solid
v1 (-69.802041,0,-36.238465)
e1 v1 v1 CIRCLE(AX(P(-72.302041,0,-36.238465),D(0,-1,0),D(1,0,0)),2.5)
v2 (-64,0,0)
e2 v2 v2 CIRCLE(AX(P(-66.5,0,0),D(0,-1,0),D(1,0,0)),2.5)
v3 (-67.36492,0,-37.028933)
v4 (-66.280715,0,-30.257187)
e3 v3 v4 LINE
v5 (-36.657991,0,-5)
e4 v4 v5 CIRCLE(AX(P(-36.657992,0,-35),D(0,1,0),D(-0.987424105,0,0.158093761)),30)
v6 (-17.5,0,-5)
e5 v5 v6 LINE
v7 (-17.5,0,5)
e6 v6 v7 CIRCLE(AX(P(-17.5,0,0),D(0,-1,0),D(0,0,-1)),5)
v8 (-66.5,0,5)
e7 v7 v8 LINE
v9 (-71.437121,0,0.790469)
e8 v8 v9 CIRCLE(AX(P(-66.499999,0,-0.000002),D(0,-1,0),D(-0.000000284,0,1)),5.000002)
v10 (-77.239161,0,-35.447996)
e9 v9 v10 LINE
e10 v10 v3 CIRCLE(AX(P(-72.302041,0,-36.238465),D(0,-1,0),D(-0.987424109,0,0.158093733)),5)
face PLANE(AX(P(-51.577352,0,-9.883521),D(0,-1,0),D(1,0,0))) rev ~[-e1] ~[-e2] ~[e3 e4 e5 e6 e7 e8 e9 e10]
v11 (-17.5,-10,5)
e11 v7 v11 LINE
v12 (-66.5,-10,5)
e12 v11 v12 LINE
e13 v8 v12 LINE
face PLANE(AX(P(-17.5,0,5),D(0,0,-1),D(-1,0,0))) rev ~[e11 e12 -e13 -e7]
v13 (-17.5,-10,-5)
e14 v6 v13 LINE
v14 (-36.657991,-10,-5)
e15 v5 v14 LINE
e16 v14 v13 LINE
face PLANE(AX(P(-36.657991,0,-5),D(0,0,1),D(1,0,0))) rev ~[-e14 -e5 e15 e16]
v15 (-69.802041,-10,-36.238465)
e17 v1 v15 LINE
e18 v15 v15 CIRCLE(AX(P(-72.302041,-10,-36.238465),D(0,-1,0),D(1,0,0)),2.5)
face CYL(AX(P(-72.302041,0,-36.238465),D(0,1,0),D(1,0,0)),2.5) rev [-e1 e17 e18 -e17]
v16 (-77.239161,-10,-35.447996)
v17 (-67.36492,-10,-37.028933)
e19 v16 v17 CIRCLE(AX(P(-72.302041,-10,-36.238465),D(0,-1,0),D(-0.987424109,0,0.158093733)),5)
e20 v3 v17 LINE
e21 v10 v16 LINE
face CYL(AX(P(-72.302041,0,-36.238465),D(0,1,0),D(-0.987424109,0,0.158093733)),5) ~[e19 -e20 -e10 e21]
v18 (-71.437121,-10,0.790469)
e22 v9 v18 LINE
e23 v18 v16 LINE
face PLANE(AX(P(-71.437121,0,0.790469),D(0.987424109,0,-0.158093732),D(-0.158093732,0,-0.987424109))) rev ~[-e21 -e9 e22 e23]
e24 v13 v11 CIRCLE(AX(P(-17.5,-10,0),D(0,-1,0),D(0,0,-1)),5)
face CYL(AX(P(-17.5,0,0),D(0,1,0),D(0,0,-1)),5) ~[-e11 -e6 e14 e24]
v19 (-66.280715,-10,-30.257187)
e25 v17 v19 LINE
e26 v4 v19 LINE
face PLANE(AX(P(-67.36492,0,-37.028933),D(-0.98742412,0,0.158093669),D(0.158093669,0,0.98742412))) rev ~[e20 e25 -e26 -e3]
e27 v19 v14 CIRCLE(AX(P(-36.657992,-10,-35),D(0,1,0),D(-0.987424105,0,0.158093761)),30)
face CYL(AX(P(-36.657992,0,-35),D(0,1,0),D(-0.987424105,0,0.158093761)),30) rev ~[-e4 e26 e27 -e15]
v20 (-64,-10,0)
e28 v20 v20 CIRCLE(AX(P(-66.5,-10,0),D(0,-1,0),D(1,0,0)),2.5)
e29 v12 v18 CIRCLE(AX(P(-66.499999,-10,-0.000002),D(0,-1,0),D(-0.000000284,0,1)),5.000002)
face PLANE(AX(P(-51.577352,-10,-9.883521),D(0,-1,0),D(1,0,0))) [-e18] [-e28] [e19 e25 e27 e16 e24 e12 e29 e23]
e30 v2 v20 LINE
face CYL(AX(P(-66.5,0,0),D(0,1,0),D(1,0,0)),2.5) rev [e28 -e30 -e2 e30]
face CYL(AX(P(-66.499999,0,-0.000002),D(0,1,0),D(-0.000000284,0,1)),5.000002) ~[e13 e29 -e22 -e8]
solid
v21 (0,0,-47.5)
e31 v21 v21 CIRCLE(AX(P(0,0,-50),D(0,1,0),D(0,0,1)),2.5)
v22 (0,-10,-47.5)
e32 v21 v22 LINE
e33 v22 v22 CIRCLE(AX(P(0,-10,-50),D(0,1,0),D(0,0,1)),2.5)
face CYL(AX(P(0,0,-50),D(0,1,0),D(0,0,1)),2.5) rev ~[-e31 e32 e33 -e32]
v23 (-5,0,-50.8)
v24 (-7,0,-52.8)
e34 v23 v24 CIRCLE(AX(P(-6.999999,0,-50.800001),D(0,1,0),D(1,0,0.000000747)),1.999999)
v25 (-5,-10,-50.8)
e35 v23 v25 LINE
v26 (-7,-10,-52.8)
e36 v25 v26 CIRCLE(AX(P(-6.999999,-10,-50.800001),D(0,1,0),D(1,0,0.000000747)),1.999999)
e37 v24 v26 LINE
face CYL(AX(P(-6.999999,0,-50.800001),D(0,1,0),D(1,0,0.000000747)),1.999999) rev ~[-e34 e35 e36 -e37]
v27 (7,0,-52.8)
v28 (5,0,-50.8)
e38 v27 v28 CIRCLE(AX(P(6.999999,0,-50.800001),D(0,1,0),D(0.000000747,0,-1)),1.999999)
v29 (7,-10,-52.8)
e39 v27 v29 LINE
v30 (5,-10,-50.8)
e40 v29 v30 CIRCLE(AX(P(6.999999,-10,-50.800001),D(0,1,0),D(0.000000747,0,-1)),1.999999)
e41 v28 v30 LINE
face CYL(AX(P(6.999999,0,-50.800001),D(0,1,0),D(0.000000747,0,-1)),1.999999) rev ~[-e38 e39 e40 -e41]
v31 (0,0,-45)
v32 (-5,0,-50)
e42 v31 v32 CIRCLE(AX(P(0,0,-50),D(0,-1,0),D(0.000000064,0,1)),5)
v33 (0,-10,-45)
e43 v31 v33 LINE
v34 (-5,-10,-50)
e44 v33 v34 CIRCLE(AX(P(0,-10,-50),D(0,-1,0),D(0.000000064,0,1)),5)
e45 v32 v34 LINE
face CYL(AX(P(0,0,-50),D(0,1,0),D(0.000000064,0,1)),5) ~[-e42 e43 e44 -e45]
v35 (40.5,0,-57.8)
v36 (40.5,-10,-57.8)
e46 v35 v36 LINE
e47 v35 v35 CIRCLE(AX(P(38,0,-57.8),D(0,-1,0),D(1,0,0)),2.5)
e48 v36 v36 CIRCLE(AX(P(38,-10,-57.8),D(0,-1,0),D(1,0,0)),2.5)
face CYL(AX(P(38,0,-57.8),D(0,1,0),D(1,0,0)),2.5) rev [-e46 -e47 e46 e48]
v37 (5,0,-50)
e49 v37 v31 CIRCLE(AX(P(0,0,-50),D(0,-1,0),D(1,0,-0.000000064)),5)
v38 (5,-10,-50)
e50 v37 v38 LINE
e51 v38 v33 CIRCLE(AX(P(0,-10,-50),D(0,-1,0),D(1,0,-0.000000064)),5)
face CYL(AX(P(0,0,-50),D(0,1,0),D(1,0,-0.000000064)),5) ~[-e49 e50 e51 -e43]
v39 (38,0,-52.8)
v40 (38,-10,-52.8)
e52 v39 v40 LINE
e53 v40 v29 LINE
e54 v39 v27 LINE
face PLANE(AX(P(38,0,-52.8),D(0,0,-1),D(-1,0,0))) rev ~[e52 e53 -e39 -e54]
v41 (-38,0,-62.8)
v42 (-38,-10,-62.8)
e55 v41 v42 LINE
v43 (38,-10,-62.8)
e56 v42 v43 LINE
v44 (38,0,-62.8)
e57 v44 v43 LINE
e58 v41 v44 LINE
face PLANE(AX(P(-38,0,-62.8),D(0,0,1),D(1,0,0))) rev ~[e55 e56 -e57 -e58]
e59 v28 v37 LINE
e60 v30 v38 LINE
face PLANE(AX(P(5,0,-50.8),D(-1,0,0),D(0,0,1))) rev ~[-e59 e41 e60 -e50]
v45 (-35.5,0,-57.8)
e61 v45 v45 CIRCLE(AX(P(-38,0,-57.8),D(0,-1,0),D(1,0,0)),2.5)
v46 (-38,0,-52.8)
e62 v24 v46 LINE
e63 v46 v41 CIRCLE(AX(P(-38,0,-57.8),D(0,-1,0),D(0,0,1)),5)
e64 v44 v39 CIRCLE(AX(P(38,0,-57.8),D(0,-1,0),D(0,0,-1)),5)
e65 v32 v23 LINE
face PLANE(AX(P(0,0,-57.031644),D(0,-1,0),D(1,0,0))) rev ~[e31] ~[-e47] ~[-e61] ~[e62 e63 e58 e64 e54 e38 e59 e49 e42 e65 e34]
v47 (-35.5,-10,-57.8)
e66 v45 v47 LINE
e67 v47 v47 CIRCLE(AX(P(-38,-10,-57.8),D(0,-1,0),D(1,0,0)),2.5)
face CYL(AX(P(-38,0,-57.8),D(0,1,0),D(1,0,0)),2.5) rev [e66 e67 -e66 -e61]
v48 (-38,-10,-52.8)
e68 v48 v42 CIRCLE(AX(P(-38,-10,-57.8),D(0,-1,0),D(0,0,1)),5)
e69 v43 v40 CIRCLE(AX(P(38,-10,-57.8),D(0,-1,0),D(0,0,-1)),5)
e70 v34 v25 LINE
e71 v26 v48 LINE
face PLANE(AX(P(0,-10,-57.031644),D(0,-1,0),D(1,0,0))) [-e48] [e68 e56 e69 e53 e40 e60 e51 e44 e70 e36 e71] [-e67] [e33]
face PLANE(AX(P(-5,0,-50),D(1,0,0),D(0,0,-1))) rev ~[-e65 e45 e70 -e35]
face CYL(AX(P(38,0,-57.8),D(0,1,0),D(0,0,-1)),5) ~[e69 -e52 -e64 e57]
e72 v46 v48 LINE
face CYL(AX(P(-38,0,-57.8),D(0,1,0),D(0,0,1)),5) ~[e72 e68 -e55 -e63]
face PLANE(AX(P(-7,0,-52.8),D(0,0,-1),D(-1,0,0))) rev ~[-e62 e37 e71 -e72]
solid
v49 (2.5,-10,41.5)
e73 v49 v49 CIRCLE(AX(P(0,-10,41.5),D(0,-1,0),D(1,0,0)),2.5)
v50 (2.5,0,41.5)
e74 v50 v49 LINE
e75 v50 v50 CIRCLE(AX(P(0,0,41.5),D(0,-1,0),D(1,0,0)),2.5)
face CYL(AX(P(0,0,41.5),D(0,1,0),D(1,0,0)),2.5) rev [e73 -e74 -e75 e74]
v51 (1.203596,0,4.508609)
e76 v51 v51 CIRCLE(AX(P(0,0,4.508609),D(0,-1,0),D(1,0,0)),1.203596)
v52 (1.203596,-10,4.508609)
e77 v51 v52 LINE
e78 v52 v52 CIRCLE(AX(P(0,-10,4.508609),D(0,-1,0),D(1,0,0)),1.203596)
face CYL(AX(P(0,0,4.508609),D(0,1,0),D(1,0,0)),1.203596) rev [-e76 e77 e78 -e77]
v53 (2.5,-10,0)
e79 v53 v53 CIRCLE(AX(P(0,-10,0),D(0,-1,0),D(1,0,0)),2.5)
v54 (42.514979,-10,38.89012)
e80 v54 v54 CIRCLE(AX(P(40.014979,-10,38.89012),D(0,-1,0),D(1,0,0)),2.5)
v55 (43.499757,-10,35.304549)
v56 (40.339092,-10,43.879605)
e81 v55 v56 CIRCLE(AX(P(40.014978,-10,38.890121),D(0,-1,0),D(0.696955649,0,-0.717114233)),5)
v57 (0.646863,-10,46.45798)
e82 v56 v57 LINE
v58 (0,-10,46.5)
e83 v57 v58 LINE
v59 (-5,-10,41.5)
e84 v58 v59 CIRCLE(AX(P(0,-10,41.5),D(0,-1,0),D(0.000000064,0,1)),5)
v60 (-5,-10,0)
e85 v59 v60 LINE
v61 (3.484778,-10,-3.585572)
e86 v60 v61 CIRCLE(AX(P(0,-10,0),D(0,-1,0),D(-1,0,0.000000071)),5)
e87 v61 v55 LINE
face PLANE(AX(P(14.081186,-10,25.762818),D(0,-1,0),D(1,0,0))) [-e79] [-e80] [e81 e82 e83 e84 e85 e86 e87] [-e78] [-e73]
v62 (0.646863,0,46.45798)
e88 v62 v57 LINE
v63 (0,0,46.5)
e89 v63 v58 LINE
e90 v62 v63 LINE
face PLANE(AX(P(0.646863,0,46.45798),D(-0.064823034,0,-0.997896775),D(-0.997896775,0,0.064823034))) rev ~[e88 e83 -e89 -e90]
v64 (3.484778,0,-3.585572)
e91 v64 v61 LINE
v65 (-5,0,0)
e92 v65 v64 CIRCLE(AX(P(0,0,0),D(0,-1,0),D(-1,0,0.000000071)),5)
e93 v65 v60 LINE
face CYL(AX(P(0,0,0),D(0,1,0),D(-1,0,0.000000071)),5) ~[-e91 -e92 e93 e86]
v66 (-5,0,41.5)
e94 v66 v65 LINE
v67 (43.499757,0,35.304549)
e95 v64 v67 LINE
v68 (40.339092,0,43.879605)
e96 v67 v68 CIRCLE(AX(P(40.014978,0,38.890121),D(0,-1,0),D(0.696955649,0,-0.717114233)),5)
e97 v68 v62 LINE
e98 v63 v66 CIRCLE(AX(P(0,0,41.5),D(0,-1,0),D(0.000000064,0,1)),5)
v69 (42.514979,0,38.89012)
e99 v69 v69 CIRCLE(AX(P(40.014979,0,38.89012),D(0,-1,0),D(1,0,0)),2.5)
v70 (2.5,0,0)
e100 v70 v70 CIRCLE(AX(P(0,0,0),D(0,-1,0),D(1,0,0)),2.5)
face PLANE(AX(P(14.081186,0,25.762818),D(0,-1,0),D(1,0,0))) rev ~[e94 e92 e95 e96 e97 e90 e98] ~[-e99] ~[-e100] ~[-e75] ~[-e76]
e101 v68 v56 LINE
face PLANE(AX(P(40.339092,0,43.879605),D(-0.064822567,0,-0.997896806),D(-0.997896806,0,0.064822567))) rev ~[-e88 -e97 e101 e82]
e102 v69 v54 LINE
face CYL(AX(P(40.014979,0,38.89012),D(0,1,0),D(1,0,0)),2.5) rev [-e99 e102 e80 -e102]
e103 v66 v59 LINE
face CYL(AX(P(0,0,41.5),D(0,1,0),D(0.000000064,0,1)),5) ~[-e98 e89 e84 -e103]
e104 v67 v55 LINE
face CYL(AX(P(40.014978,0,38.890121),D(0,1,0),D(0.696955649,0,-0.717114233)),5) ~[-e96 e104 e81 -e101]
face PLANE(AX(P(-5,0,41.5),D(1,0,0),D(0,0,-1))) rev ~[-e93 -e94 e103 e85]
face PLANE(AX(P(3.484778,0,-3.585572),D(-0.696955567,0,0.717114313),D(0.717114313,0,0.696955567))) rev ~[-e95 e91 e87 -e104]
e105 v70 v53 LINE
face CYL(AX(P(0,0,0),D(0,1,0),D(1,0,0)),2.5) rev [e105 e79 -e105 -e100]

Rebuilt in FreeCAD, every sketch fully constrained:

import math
import FreeCAD as App
import Part
import Sketcher
from FreeCAD import Vector

doc = App.newDocument("Part")
body = doc.addObject("PartDesign::Body", "Body")

# Sketch on XZ plane
sketch1 = doc.addObject("Sketcher::SketchObject", "Sketch")
body.addObject(sketch1)
sketch1.AttachmentSupport = (doc.XZ_Plane, [""])
sketch1.MapMode = "FlatFace"
sketch1.addGeometry([
    Part.LineSegment(Vector(40.339092, 43.879605, 0), Vector(0.646863, 46.45798, 0)),  # 0
    Part.LineSegment(Vector(0.646863, 46.45798, 0), Vector(0, 46.5, 0)),  # 1
    Part.ArcOfCircle(Part.Circle(Vector(0, 41.5, 0), Vector(0, 0, 1), 5), math.radians(89.999996), math.radians(180.000004)),  # 2
    Part.LineSegment(Vector(-5, 41.5, 0), Vector(-5, 0, 0)),  # 3
    Part.ArcOfCircle(Part.Circle(Vector(0, 0, 0), Vector(0, 0, 1), 5), math.radians(179.999996), math.radians(314.183256)),  # 4
    Part.LineSegment(Vector(3.484778, -3.585572, 0), Vector(43.499757, 35.304549, 0)),  # 5
    Part.ArcOfCircle(Part.Circle(Vector(40.014978, 38.890121, 0), Vector(0, 0, 1), 5), math.radians(-45.816737), math.radians(86.283326)),  # 6
    Part.Circle(Vector(0, 0, 0), Vector(0, 0, 1), 2.5),  # 7
    Part.Circle(Vector(0, 4.508609, 0), Vector(0, 0, 1), 1.203596),  # 8
    Part.Circle(Vector(0, 41.5, 0), Vector(0, 0, 1), 2.5),  # 9
    Part.Circle(Vector(40.014979, 38.89012, 0), Vector(0, 0, 1), 2.5),  # 10
], False)
sketch1.addConstraint([
    Sketcher.Constraint("Coincident", 0, 2, 1, 1),
    Sketcher.Constraint("Coincident", 1, 2, 2, 1),
    Sketcher.Constraint("Tangent", 2, 2, 3, 1),
    Sketcher.Constraint("Tangent", 3, 2, 4, 1),
    Sketcher.Constraint("Tangent", 4, 2, 5, 1),
    Sketcher.Constraint("Tangent", 5, 2, 6, 1),
    Sketcher.Constraint("Tangent", 6, 2, 0, 1),
    Sketcher.Constraint("Vertical", 3),
    Sketcher.Constraint("Coincident", 4, 3, -1, 1),
    Sketcher.Constraint("Coincident", 7, 3, -1, 1),
    Sketcher.Constraint("Coincident", 9, 3, 2, 3),
    Sketcher.Constraint("Coincident", 10, 3, 6, 3),
    Sketcher.Constraint("Equal", 2, 4),
    Sketcher.Constraint("Equal", 4, 6),
    Sketcher.Constraint("Equal", 7, 9),
    Sketcher.Constraint("Equal", 9, 10),
    Sketcher.Constraint("PointOnObject", 8, 3, -2),
    Sketcher.Constraint("PointOnObject", 1, 2, -2),
    Sketcher.Constraint("Parallel", 0, 1),
    Sketcher.Constraint("Diameter", 7, 5.0),
    Sketcher.Constraint("Radius", 2, 5.0),
    Sketcher.Constraint("DistanceY", 3, 2, 3, 1, 41.5),
    Sketcher.Constraint("Distance", 5, 55.8),
    Sketcher.Constraint("Diameter", 8, 2.407192),
    Sketcher.Constraint("DistanceX", -1, 1, 6, 3, 40.014978),
    Sketcher.Constraint("DistanceY", -1, 1, 8, 3, 4.508609),
    Sketcher.Constraint("DistanceY", -1, 1, 0, 2, 46.45798),
])
pad1 = doc.addObject("PartDesign::Pad", "Pad")
body.addObject(pad1)
pad1.Profile = sketch1
pad1.Length = 10
body2 = doc.addObject("PartDesign::Body", "Body001")

# Sketch on XZ plane
sketch2 = doc.addObject("Sketcher::SketchObject", "Sketch001")
body2.addObject(sketch2)
sketch2.AttachmentSupport = (doc.getObject("XZ_Plane001"), [""])
sketch2.MapMode = "FlatFace"
sketch2.addGeometry([
    Part.LineSegment(Vector(-36.657991, -5, 0), Vector(-17.5, -5, 0)),  # 0
    Part.ArcOfCircle(Part.Circle(Vector(-17.5, 0, 0), Vector(0, 0, 1), 5), math.radians(-90), math.radians(90)),  # 1
    Part.LineSegment(Vector(-17.5, 5, 0), Vector(-66.5, 5, 0)),  # 2
    Part.ArcOfCircle(Part.Circle(Vector(-66.499999, -0.000002, 0), Vector(0, 0, 1), 5.000002), math.radians(90.000016), math.radians(170.903707)),  # 3
    Part.LineSegment(Vector(-71.437121, 0.790469, 0), Vector(-77.239161, -35.447996, 0)),  # 4
    Part.ArcOfCircle(Part.Circle(Vector(-72.302041, -36.238465, 0), Vector(0, 0, 1), 5), math.radians(170.903733), math.radians(350.903737)),  # 5
    Part.LineSegment(Vector(-67.36492, -37.028933, 0), Vector(-66.280715, -30.257187, 0)),  # 6
    Part.ArcOfCircle(Part.Circle(Vector(-36.657992, -35, 0), Vector(0, 0, 1), 30), math.radians(89.999998), math.radians(170.903731)),  # 7
    Part.Circle(Vector(-72.302041, -36.238465, 0), Vector(0, 0, 1), 2.5),  # 8
    Part.Circle(Vector(-66.5, 0, 0), Vector(0, 0, 1), 2.5),  # 9
], False)
sketch2.addConstraint([
    Sketcher.Constraint("Tangent", 0, 2, 1, 1),
    Sketcher.Constraint("Tangent", 1, 2, 2, 1),
    Sketcher.Constraint("Tangent", 2, 2, 3, 1),
    Sketcher.Constraint("Tangent", 3, 2, 4, 1),
    Sketcher.Constraint("Tangent", 4, 2, 5, 1),
    Sketcher.Constraint("Tangent", 5, 2, 6, 1),
    Sketcher.Constraint("Tangent", 6, 2, 7, 2),
    Sketcher.Constraint("Tangent", 7, 1, 0, 1),
    Sketcher.Constraint("Horizontal", 0),
    Sketcher.Constraint("Horizontal", 2),
    Sketcher.Constraint("Coincident", 8, 3, 5, 3),
    Sketcher.Constraint("Coincident", 9, 3, 3, 3),
    Sketcher.Constraint("Equal", 1, 5),
    Sketcher.Constraint("Equal", 8, 9),
    Sketcher.Constraint("PointOnObject", 1, 3, -1),
    Sketcher.Constraint("PointOnObject", 9, 3, -1),
    Sketcher.Constraint("Parallel", 4, 6),
    Sketcher.Constraint("Diameter", 8, 5.0),
    Sketcher.Constraint("Radius", 1, 5.0),
    Sketcher.Constraint("Radius", 7, 30.0),
    Sketcher.Constraint("DistanceX", 2, 2, 2, 1, 49.0),
    Sketcher.Constraint("Distance", 4, 36.7),
    Sketcher.Constraint("DistanceX", 1, 3, -1, 1, 17.5),
    Sketcher.Constraint("DistanceX", 0, 1, 0, 2, 19.157991),
])
pad2 = doc.addObject("PartDesign::Pad", "Pad001")
body2.addObject(pad2)
pad2.Profile = sketch2
pad2.Length = 10
body3 = doc.addObject("PartDesign::Body", "Body002")

# Sketch on XZ plane
sketch3 = doc.addObject("Sketcher::SketchObject", "Sketch002")
body3.addObject(sketch3)
sketch3.AttachmentSupport = (doc.getObject("XZ_Plane002"), [""])
sketch3.MapMode = "FlatFace"
sketch3.addGeometry([
    Part.LineSegment(Vector(-7, -52.8, 0), Vector(-38, -52.8, 0)),  # 0
    Part.ArcOfCircle(Part.Circle(Vector(-38, -57.8, 0), Vector(0, 0, 1), 5), math.radians(90), math.radians(270)),  # 1
    Part.LineSegment(Vector(-38, -62.8, 0), Vector(38, -62.8, 0)),  # 2
    Part.ArcOfCircle(Part.Circle(Vector(38, -57.8, 0), Vector(0, 0, 1), 5), math.radians(-90), math.radians(90)),  # 3
    Part.LineSegment(Vector(38, -52.8, 0), Vector(7, -52.8, 0)),  # 4
    Part.ArcOfCircle(Part.Circle(Vector(6.999999, -50.800001, 0), Vector(0, 0, 1), 1.999999), math.radians(179.999957), math.radians(270.000043)),  # 5
    Part.LineSegment(Vector(5, -50.8, 0), Vector(5, -50, 0)),  # 6
    Part.ArcOfCircle(Part.Circle(Vector(0, -50, 0), Vector(0, 0, 1), 5), math.radians(-0.000004), math.radians(90.000004)),  # 7
    Part.ArcOfCircle(Part.Circle(Vector(0, -50, 0), Vector(0, 0, 1), 5), math.radians(89.999996), math.radians(180.000004)),  # 8
    Part.LineSegment(Vector(-5, -50, 0), Vector(-5, -50.8, 0)),  # 9
    Part.ArcOfCircle(Part.Circle(Vector(-6.999999, -50.800001, 0), Vector(0, 0, 1), 1.999999), math.radians(-90.000043), math.radians(0.000043)),  # 10
    Part.Circle(Vector(-38, -57.8, 0), Vector(0, 0, 1), 2.5),  # 11
    Part.Circle(Vector(38, -57.8, 0), Vector(0, 0, 1), 2.5),  # 12
    Part.Circle(Vector(0, -50, 0), Vector(0, 0, 1), 2.5),  # 13
], False)
sketch3.addConstraint([
    Sketcher.Constraint("Tangent", 0, 2, 1, 1),
    Sketcher.Constraint("Tangent", 1, 2, 2, 1),
    Sketcher.Constraint("Tangent", 2, 2, 3, 1),
    Sketcher.Constraint("Tangent", 3, 2, 4, 1),
    Sketcher.Constraint("Tangent", 4, 2, 5, 2),
    Sketcher.Constraint("Tangent", 5, 1, 6, 1),
    Sketcher.Constraint("Tangent", 6, 2, 7, 1),
    Sketcher.Constraint("Tangent", 7, 2, 8, 1),
    Sketcher.Constraint("Tangent", 8, 2, 9, 1),
    Sketcher.Constraint("Tangent", 9, 2, 10, 2),
    Sketcher.Constraint("Tangent", 10, 1, 0, 1),
    Sketcher.Constraint("Horizontal", 0),
    Sketcher.Constraint("Horizontal", 2),
    Sketcher.Constraint("Horizontal", 4),
    Sketcher.Constraint("Vertical", 6),
    Sketcher.Constraint("Vertical", 9),
    Sketcher.Constraint("Coincident", 11, 3, 1, 3),
    Sketcher.Constraint("Coincident", 12, 3, 3, 3),
    Sketcher.Constraint("Coincident", 13, 3, 7, 3),
    Sketcher.Constraint("Equal", 1, 3),
    Sketcher.Constraint("Equal", 3, 7),
    Sketcher.Constraint("Equal", 7, 8),
    Sketcher.Constraint("Equal", 5, 10),
    Sketcher.Constraint("Equal", 11, 12),
    Sketcher.Constraint("Equal", 12, 13),
    Sketcher.Constraint("PointOnObject", 7, 3, -2),
    Sketcher.Constraint("PointOnObject", 7, 2, -2),
    Sketcher.Constraint("Equal", 0, 4),
    Sketcher.Constraint("Diameter", 11, 5.0),
    Sketcher.Constraint("Radius", 1, 5.0),
    Sketcher.Constraint("Radius", 5, 1.999999),
    Sketcher.Constraint("DistanceX", 0, 2, 0, 1, 31.0),
    Sketcher.Constraint("DistanceY", 6, 1, 6, 2, 0.8),
    Sketcher.Constraint("DistanceY", 7, 3, -1, 1, 50.0),
])
pad3 = doc.addObject("PartDesign::Pad", "Pad002")
body3.addObject(pad3)
pad3.Profile = sketch3
pad3.Length = 10

doc.recompute()
